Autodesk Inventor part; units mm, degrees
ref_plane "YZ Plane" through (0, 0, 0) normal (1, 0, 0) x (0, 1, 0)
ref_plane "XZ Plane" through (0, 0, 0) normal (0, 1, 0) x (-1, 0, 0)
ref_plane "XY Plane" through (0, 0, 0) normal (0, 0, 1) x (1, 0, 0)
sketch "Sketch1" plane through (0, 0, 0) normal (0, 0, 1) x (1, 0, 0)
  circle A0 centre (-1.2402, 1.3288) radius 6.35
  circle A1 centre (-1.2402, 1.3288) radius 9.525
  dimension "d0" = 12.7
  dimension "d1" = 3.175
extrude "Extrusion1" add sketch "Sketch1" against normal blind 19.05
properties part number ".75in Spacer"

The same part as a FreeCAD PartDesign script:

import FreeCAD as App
import Part
import Sketcher
from FreeCAD import Vector
Q = App.Units.Quantity

doc = App.newDocument("Part")
body = doc.addObject("PartDesign::Body", "Body")

# Sketch on XY plane
sketch1 = doc.addObject("Sketcher::SketchObject", "Sketch")
body.addObject(sketch1)
sketch1.AttachmentSupport = (doc.XY_Plane, [""])
sketch1.MapMode = "FlatFace"
sketch1.addGeometry(Part.Circle(Vector(-1.2402, 1.3288, 0), Vector(0, 0, 1), 9.525), False)
sketch1.addGeometry(Part.Circle(Vector(-1.2402, 1.3288, 0), Vector(0, 0, 1), 6.35), False)
sketch1.addConstraint(Sketcher.Constraint("Coincident", 1, 3, 0, 3))
sketch1.addConstraint(Sketcher.Constraint("Diameter", 1, Q("0.5 in")))
sketch1.addConstraint(Sketcher.Constraint("Diameter", 0, Q("0.75 in")))
sketch1.addConstraint(Sketcher.Constraint("DistanceX", 0, 3, -1, 1, 1.2402))
sketch1.addConstraint(Sketcher.Constraint("DistanceY", -1, 1, 0, 3, 1.3288))
pad1 = doc.addObject("PartDesign::Pad", "Pad")
body.addObject(pad1)
pad1.Profile = sketch1
pad1.Length = Q("0.75 in")
pad1.Reversed = True

doc.recompute()
